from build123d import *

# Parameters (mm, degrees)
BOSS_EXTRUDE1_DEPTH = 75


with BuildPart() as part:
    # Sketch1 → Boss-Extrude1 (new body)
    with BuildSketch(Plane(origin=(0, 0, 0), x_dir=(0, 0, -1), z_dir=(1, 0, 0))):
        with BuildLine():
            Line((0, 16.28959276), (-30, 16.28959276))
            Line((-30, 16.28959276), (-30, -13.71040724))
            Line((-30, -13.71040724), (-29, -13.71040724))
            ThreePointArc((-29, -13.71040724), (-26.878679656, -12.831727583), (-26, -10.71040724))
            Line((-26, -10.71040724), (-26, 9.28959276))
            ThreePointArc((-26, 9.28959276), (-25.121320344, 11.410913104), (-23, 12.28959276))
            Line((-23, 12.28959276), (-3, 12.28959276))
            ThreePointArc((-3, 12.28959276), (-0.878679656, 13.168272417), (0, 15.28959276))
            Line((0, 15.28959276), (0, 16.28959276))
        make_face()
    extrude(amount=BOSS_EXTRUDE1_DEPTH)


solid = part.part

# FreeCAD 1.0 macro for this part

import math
import FreeCAD as App
import Part
import Sketcher
from FreeCAD import Vector
Q = App.Units.Quantity

doc = App.newDocument("Part")
body = doc.addObject("PartDesign::Body", "Body")

sketch1 = doc.addObject("Sketcher::SketchObject", "Sketch")
body.addObject(sketch1)
sketch1.AttachmentSupport = (doc.YZ_Plane, [""])
sketch1.MapMode = "FlatFace"
sketch1.addGeometry([
    Part.LineSegment(Vector(16.3, 0, 0), Vector(16.3, 30, 0)),
    Part.LineSegment(Vector(16.3, 30, 0), Vector(-13.7, 30, 0)),
    Part.LineSegment(Vector(-13.7, 30, 0), Vector(-13.7, 29, 0)),
    Part.ArcOfCircle(Part.Circle(Vector(-10.7, 29, 0), Vector(0, 0, 1), 3), math.radians(180), math.radians(270)),
    Part.LineSegment(Vector(-10.7, 26, 0), Vector(9.3, 26, 0)),
    Part.ArcOfCircle(Part.Circle(Vector(9.3, 23, 0), Vector(0, 0, 1), 3), math.radians(0), math.radians(90)),
    Part.LineSegment(Vector(12.3, 23, 0), Vector(12.3, 3, 0)),
    Part.ArcOfCircle(Part.Circle(Vector(15.3, 3, 0), Vector(0, 0, 1), 3), math.radians(180), math.radians(270)),
    Part.LineSegment(Vector(15.3, 0, 0), Vector(16.3, 0, 0)),
], False)
sketch1.addConstraint([
    Sketcher.Constraint("Coincident", 0, 2, 1, 1),
    Sketcher.Constraint("Coincident", 1, 2, 2, 1),
    Sketcher.Constraint("Tangent", 2, 2, 3, 1),
    Sketcher.Constraint("Tangent", 3, 2, 4, 1),
    Sketcher.Constraint("Tangent", 4, 2, 5, 2),
    Sketcher.Constraint("Tangent", 5, 1, 6, 1),
    Sketcher.Constraint("Tangent", 6, 2, 7, 1),
    Sketcher.Constraint("Tangent", 7, 2, 8, 1),
    Sketcher.Constraint("Coincident", 8, 2, 0, 1),
    Sketcher.Constraint("Vertical", 0),
    Sketcher.Constraint("Horizontal", 1),
    Sketcher.Constraint("Vertical", 2),
    Sketcher.Constraint("Horizontal", 4),
    Sketcher.Constraint("Vertical", 6),
    Sketcher.Constraint("Horizontal", 8),
    Sketcher.Constraint("Equal", 3, 5),
    Sketcher.Constraint("Equal", 5, 7),
    Sketcher.Constraint("PointOnObject", 7, 2, -1),
    Sketcher.Constraint("Equal", 1, 0),
    Sketcher.Constraint("Equal", 8, 2),
    Sketcher.Constraint("Radius", 3, Q("3 mm")),
    Sketcher.Constraint("DistanceX", 1, 2, 1, 1, Q("30 mm")),
    Sketcher.Constraint("DistanceX", 4, 1, 4, 2, Q("20 mm")),
    Sketcher.Constraint("DistanceX", 3, 3, -1, 1, Q("10.710407 mm")),
])
pad1 = doc.addObject("PartDesign::Pad", "Pad")
body.addObject(pad1)
pad1.Profile = sketch1
pad1.Length = 75

doc.recompute()
